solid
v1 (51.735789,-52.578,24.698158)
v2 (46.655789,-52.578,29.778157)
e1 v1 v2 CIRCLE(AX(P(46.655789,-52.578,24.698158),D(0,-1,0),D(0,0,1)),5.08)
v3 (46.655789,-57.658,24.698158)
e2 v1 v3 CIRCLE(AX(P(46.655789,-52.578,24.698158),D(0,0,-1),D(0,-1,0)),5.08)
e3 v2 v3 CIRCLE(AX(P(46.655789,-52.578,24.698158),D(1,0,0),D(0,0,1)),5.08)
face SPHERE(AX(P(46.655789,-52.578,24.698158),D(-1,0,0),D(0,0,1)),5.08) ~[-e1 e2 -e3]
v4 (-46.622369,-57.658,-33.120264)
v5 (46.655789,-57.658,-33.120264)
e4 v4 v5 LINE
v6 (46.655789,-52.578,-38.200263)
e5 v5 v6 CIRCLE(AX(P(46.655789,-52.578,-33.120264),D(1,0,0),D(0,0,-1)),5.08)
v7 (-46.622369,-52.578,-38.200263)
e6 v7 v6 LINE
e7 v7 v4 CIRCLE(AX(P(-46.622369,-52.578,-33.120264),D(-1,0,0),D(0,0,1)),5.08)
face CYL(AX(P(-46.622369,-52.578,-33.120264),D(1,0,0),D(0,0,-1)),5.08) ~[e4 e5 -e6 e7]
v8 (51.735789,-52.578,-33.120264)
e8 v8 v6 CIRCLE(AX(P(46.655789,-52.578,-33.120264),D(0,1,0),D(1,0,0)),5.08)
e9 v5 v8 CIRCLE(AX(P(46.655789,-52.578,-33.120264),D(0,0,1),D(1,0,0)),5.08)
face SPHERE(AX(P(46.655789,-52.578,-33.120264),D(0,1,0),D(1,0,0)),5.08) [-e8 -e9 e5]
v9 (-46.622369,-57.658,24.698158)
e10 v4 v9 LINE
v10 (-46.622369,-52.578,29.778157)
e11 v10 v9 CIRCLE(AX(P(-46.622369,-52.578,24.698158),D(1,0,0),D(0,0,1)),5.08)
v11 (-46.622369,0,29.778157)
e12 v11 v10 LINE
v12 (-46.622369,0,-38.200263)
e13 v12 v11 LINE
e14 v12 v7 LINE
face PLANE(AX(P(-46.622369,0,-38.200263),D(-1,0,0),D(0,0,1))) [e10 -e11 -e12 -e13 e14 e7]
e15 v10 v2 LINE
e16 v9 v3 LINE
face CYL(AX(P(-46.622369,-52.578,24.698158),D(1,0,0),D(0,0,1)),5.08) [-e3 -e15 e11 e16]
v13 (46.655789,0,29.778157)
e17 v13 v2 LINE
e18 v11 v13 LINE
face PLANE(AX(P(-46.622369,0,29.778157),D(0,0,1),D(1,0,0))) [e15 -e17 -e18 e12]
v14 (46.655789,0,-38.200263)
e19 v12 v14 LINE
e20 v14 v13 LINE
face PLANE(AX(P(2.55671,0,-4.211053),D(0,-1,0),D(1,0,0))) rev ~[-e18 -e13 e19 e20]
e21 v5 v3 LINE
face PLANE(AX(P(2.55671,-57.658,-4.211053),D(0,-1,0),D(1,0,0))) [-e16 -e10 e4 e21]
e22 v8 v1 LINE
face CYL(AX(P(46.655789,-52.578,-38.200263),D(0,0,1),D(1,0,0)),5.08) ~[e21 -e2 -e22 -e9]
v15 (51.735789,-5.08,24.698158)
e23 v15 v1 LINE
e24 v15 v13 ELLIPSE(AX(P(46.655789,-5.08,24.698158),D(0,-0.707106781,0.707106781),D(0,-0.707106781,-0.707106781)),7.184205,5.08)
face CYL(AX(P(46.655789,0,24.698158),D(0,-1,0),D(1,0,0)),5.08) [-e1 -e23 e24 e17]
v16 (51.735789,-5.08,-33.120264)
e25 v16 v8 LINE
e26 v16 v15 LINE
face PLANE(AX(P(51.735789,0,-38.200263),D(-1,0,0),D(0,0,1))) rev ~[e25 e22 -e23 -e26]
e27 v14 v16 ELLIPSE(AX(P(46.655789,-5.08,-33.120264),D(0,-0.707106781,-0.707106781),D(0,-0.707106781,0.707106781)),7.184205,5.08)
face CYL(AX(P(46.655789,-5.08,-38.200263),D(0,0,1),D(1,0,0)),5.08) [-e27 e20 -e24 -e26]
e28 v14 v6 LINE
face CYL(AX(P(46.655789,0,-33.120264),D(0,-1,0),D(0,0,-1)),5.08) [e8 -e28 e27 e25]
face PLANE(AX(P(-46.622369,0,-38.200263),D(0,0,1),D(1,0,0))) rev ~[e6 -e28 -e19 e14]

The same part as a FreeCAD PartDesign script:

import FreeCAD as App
import Part
import Sketcher
Q = App.Units.Quantity


def edges_at(feature, points):
    """Names of the edges that pass closest to the given points."""
    edges = feature.Shape.Edges
    near = lambda p: min(range(len(edges)), key=lambda i: edges[i].distToShape(Part.Vertex(*p))[0])
    return sorted({f"Edge{near(p) + 1}" for p in points})


def add_polygon(sketch, points):
    """Adds a closed chain of lines whose ends are joined by coincident constraints."""
    first, n = sketch.GeometryCount, len(points)
    for a, b in zip(points, points[1:] + points[:1]):
        sketch.addGeometry(Part.LineSegment(App.Vector(*a, 0), App.Vector(*b, 0)), False)
    for i in range(n):
        sketch.addConstraint(Sketcher.Constraint("Coincident", first + i, 2, first + (i + 1) % n, 1))

doc = App.newDocument("Part")
body = doc.addObject("PartDesign::Body", "Body")

sketch1 = body.newObject("Sketcher::SketchObject", "Sketch")
sketch1.AttachmentSupport = (doc.getObject("XZ_Plane"), [""])
sketch1.MapMode = "FlatFace"
add_polygon(sketch1, [(-47, 30), (-47, -38), (52, -38), (52, 30)])
sketch1.addConstraint(Sketcher.Constraint("Vertical", 0))
sketch1.addConstraint(Sketcher.Constraint("Horizontal", 1))
sketch1.addConstraint(Sketcher.Constraint("Vertical", 2))
sketch1.addConstraint(Sketcher.Constraint("Horizontal", 3))
sketch1.addConstraint(Sketcher.Constraint("DistanceX", 1, 1, 1, 2, Q("98.358158 mm")))
sketch1.addConstraint(Sketcher.Constraint("DistanceY", 0, 2, 0, 1, Q("67.978421 mm")))
sketch1.addConstraint(Sketcher.Constraint("DistanceX", 0, 2, -1, 1, Q("46.622369 mm")))
sketch1.addConstraint(Sketcher.Constraint("DistanceY", 0, 2, -1, 1, Q("38.200263 mm")))
pad1 = body.newObject("PartDesign::Pad", "Pad")
pad1.Profile = sketch1
pad1.Length = Q("2.27 in")
doc.recompute()

fillet = body.newObject("PartDesign::Fillet", "Fillet")
fillet.Base = (pad1, edges_at(pad1, [
    (2.557, -57.658, 29.778),
    (51.736, -28.829, -38.2),
    (51.736, -28.829, 29.778),
    (51.736, 0, -4.211),
    (51.736, -57.658, -4.211),
    (2.557, -57.658, -38.2),
]))
fillet.Radius = Q("0.2 in")

doc.recompute()
